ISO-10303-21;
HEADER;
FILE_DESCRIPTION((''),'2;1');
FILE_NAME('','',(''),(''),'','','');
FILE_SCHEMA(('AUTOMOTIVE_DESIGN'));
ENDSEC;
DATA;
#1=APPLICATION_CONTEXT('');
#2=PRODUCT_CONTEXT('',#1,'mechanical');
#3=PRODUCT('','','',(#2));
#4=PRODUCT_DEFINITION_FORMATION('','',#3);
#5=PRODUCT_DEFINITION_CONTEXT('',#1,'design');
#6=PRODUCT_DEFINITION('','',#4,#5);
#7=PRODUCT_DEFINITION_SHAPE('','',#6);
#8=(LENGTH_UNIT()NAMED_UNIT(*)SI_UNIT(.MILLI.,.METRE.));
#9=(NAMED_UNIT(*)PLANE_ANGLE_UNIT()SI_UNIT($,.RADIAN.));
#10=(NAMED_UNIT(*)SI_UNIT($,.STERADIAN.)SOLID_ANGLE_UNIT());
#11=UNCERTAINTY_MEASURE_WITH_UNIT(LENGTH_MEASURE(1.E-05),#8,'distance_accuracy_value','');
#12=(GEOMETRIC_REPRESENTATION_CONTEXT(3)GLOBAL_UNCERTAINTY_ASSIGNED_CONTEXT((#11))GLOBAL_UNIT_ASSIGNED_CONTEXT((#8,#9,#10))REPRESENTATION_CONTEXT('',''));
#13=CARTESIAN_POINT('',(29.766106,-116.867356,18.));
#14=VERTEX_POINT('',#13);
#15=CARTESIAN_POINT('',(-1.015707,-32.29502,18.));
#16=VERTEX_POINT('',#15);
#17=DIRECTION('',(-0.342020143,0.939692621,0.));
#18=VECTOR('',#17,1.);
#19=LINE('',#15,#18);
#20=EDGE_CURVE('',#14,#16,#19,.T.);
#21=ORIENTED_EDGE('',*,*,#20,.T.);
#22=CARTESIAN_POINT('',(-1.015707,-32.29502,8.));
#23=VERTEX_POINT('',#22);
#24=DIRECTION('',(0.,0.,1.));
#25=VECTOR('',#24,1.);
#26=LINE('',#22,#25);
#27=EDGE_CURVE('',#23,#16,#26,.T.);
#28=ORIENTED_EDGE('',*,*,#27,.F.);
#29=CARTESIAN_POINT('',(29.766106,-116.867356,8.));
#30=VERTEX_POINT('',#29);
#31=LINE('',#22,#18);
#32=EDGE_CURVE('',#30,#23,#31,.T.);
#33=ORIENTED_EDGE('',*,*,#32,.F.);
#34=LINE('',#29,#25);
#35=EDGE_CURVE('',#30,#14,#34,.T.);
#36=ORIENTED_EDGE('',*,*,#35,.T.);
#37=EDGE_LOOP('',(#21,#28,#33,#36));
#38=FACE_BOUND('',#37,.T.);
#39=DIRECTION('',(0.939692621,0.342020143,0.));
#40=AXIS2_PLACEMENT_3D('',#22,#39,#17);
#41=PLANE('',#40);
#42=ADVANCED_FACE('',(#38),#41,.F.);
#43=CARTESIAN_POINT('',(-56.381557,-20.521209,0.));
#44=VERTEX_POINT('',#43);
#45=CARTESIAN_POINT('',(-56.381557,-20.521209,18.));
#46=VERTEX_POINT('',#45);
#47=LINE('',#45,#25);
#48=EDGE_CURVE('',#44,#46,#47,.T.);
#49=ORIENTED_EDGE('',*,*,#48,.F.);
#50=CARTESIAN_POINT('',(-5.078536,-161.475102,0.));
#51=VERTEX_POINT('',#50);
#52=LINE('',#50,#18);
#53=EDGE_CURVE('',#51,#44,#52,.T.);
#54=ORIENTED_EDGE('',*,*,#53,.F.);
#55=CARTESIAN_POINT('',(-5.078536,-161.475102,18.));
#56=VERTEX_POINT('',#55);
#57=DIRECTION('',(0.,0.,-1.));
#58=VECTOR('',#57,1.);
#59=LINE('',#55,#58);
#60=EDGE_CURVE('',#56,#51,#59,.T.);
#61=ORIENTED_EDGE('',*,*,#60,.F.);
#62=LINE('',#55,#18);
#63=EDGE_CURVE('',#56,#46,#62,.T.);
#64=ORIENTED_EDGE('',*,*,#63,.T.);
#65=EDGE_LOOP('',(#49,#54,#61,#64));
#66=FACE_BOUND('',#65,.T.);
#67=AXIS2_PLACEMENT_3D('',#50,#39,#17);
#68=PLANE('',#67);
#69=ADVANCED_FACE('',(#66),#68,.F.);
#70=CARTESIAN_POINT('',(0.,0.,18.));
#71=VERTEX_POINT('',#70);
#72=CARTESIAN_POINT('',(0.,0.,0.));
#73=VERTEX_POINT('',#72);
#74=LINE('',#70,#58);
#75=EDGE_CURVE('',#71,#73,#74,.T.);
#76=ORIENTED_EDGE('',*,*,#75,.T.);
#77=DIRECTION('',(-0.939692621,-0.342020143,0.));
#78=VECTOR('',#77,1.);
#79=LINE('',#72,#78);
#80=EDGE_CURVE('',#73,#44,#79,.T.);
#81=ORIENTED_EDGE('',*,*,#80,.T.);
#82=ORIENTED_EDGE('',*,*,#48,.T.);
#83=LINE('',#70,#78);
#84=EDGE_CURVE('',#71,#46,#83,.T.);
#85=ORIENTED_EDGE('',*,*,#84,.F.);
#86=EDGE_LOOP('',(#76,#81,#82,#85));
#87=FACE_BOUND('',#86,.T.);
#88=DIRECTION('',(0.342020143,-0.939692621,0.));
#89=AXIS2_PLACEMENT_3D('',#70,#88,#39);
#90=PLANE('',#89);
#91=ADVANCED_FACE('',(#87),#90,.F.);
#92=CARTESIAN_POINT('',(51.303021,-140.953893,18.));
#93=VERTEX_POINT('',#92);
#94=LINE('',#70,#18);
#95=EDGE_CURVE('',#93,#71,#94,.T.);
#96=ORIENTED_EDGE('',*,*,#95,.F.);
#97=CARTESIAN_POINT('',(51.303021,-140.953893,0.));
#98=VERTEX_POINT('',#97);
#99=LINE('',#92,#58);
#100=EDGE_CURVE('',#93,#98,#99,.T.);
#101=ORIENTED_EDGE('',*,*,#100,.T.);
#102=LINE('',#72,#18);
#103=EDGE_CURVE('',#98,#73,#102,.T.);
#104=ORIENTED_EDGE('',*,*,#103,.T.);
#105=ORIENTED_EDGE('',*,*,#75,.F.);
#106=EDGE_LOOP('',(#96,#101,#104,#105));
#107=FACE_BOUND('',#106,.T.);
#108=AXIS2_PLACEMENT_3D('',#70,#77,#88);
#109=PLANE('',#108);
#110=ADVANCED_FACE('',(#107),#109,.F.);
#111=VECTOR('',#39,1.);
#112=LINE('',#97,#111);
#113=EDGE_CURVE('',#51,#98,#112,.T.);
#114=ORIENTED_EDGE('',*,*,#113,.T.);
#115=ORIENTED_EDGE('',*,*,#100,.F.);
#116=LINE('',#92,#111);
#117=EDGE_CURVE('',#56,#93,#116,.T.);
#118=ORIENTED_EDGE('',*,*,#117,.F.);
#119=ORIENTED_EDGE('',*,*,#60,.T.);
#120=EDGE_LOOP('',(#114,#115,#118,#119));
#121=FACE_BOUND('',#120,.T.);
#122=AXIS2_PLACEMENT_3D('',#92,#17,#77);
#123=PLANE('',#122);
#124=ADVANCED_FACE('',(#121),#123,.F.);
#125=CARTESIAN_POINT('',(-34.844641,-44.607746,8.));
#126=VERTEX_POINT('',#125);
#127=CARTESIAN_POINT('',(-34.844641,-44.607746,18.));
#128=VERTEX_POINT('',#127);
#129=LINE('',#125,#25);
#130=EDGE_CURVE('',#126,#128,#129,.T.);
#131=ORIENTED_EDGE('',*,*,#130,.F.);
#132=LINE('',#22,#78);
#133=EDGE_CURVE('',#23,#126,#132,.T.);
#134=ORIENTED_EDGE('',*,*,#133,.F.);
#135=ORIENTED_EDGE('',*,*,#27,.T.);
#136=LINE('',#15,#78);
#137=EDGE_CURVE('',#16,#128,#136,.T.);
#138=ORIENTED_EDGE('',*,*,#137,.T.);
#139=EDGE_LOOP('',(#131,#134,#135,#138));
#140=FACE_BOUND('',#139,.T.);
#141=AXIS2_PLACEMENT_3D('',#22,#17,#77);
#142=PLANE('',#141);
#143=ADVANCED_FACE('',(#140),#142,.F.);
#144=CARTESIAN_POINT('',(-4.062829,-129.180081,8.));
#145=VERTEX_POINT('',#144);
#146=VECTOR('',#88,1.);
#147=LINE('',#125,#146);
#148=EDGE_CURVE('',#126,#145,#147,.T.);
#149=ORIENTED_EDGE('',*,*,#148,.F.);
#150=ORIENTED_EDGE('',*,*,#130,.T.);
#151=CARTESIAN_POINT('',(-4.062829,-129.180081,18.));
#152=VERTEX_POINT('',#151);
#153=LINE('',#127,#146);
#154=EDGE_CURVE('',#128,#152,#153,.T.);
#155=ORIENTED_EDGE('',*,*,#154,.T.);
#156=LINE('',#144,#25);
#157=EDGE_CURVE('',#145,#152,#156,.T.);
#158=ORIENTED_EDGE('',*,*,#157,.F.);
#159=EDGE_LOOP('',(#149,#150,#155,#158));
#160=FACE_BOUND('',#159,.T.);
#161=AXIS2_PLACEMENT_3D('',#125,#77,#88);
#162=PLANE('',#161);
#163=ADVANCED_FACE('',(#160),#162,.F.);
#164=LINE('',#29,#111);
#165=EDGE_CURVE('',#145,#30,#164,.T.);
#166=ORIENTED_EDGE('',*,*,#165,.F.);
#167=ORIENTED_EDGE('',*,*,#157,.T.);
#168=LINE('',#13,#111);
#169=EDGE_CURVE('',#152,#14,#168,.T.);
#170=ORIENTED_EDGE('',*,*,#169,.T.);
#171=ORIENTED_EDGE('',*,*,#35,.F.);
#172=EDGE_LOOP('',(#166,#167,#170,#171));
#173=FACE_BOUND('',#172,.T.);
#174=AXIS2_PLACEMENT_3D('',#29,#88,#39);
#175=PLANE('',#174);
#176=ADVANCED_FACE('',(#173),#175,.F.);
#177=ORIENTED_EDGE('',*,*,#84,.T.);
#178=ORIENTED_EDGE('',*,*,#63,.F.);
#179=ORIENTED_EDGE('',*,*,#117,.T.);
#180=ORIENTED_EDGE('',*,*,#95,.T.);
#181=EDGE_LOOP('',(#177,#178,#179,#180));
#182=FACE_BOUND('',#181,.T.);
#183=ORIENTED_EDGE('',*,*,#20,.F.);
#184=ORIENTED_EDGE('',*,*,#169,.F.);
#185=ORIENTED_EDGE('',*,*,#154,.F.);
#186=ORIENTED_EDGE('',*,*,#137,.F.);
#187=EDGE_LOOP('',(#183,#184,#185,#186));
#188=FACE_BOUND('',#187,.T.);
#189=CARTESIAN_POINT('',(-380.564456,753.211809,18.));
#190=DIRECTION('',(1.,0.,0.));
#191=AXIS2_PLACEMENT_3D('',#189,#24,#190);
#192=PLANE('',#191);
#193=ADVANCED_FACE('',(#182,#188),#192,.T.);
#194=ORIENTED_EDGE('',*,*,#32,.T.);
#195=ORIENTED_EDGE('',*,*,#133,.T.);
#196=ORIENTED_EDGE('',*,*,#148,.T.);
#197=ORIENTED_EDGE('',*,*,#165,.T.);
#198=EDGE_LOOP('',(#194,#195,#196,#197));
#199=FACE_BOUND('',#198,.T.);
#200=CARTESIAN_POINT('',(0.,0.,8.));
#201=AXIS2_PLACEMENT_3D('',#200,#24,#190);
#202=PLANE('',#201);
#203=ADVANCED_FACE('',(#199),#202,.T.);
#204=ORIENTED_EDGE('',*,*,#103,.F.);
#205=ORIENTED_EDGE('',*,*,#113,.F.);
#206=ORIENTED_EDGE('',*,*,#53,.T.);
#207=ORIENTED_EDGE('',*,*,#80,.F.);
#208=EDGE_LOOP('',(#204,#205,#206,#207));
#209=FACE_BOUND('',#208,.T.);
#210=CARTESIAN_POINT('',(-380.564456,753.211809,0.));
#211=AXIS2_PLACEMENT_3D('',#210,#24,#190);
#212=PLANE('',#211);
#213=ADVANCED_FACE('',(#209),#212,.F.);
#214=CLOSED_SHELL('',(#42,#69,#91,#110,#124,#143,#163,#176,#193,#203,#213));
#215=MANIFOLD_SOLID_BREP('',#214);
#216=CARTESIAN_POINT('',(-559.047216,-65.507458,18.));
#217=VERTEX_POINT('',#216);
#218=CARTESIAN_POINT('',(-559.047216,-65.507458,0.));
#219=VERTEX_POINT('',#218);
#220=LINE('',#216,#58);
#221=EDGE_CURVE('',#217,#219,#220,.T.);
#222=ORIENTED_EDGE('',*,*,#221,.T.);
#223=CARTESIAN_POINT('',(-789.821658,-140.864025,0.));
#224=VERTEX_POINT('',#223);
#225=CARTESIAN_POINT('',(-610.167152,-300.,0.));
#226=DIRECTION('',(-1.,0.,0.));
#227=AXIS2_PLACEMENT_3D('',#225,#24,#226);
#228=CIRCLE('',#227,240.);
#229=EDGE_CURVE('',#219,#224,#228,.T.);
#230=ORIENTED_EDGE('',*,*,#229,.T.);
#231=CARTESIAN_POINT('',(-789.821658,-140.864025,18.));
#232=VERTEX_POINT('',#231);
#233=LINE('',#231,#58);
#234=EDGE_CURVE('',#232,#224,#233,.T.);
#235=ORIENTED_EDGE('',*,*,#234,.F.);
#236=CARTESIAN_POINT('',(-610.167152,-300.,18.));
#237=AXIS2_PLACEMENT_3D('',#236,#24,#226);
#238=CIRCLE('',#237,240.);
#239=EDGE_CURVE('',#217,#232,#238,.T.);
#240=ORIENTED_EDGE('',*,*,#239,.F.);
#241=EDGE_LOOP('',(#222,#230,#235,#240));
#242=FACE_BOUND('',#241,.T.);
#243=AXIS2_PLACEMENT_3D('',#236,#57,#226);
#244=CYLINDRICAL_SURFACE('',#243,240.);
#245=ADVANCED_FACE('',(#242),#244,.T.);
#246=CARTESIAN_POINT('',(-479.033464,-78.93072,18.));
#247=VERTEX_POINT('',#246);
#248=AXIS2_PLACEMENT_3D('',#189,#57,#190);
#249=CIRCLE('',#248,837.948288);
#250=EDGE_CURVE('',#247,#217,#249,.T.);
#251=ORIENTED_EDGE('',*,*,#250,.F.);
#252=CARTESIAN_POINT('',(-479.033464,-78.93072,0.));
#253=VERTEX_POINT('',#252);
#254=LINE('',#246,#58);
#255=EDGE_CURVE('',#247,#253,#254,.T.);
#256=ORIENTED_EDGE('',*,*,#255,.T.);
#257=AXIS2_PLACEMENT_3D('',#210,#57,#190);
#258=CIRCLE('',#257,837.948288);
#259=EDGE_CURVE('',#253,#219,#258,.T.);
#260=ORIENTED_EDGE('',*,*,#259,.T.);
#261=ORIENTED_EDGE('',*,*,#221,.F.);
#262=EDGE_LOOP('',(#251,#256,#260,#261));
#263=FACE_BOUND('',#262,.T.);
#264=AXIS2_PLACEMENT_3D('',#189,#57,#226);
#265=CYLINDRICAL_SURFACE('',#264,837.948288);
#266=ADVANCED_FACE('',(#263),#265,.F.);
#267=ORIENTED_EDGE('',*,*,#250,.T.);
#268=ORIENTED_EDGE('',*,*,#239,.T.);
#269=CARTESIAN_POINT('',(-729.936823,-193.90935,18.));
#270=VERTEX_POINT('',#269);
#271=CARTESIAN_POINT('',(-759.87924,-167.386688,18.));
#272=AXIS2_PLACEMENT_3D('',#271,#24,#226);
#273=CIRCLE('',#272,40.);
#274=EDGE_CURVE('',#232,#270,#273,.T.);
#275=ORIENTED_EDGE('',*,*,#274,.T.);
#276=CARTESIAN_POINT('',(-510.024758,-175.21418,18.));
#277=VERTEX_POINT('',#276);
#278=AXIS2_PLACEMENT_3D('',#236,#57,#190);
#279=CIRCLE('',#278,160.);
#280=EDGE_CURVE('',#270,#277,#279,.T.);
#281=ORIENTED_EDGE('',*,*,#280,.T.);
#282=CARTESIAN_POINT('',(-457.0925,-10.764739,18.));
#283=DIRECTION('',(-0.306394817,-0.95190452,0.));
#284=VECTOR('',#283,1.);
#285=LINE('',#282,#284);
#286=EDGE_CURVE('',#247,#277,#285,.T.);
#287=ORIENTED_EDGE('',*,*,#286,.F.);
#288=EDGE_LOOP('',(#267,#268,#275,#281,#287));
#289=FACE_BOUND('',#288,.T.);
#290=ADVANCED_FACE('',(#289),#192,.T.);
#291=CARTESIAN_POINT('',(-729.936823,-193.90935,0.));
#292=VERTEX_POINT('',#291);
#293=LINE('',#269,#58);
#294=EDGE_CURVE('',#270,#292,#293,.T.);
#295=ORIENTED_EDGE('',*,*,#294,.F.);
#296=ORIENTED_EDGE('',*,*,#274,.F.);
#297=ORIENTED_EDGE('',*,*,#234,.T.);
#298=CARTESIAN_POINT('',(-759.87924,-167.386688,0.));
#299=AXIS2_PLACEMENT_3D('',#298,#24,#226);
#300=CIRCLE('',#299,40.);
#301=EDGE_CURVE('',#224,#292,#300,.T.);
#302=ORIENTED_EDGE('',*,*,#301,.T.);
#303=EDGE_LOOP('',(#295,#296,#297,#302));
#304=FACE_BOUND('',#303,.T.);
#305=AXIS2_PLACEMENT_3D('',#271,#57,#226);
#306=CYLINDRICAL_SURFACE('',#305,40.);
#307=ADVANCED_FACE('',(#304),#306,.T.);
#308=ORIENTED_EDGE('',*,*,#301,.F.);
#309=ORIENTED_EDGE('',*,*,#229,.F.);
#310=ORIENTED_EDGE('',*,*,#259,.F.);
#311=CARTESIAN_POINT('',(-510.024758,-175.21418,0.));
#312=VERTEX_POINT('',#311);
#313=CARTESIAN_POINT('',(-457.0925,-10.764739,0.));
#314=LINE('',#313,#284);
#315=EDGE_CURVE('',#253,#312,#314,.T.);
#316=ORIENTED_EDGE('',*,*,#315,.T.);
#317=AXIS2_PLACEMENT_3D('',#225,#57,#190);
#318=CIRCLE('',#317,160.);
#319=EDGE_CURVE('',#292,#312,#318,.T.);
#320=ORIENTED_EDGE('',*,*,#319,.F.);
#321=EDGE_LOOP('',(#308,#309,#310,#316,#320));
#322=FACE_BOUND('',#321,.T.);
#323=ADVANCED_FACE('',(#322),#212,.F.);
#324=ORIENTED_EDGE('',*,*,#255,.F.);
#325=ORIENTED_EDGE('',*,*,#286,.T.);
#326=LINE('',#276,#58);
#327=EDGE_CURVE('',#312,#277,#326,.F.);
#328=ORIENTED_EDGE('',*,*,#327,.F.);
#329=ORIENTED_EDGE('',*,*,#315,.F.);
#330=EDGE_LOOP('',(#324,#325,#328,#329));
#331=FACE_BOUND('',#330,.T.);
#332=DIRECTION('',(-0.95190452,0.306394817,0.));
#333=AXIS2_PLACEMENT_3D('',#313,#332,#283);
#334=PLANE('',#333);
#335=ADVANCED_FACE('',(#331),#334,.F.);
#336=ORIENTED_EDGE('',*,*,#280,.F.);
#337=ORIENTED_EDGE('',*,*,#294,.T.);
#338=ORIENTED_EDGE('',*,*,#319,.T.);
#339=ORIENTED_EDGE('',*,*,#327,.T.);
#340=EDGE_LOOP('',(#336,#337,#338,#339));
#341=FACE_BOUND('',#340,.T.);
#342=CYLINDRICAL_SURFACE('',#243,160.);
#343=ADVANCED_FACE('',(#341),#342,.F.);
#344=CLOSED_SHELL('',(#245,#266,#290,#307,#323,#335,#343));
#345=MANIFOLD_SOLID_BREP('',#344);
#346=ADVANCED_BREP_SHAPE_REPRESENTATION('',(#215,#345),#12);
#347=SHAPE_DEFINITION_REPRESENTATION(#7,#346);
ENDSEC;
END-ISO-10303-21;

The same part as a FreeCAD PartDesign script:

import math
import FreeCAD as App
import Part
import Sketcher
Q = App.Units.Quantity


def add_polygon(sketch, points):
    """Adds a closed chain of lines whose ends are joined by coincident constraints."""
    first, n = sketch.GeometryCount, len(points)
    for a, b in zip(points, points[1:] + points[:1]):
        sketch.addGeometry(Part.LineSegment(App.Vector(*a, 0), App.Vector(*b, 0)), False)
    for i in range(n):
        sketch.addConstraint(Sketcher.Constraint("Coincident", first + i, 2, first + (i + 1) % n, 1))

doc = App.newDocument("Part")
params = doc.addObject("Spreadsheet::Sheet", "Params")
for row, (alias, value) in enumerate([
    ("sketch1_radius", "240 mm"),
    ("sketch1_radius2", "40 mm"),
    ("sketch1_length", "150 mm"),
    ("sketch1_length2", "100 mm"),
    ("sketch1_length3", "60 mm"),
    ("pad1_length", "18 mm"),
    ("sketch2_radius", "55 mm"),
    ("sketch2_width", "200 mm"),
    ("sketch2_height", "97 mm"),
    ("sketch2_height2", "60 mm"),
    ("sketch4_length", "90 mm"),
    ("sketch4_length2", "36 mm"),
    ("pocket3_length", "10 mm"),
], start=1):
    params.set(f"A{row}", alias)
    params.set(f"B{row}", "=" + value)
    params.setAlias(f"B{row}", alias)

body = doc.addObject("PartDesign::Body", "Body")
body.AllowCompound = True

# Sketch on XY plane
sketch1 = body.newObject("Sketcher::SketchObject", "Sketch")
sketch1.AttachmentSupport = (doc.getObject("XY_Plane"), [""])
sketch1.MapMode = "FlatFace"
sketch1.addGeometry([
    Part.LineSegment(App.Vector(51.303021, -140.953893, 0), App.Vector(0, 0, 0)),  # 0
    Part.LineSegment(App.Vector(0, 0, 0), App.Vector(-93.969262, -34.202014, 0)),  # 1
    Part.ArcOfCircle(Part.Circle(App.Vector(-380.564456, 753.211809, 0), App.Vector(0, 0, 1), 837.948288), math.radians(-102.298202), math.radians(-70)),  # 2
    Part.ArcOfCircle(Part.Circle(App.Vector(-610.167152, -300, 0), App.Vector(0, 0, 1), 240), math.radians(77.701798), math.radians(138.465832)),  # 3
    Part.ArcOfCircle(Part.Circle(App.Vector(-759.87924, -167.386688, 0), App.Vector(0, 0, 1), 40), math.radians(138.465832), math.radians(318.465832)),  # 4
    Part.ArcOfCircle(Part.Circle(App.Vector(-610.167152, -300, 0), App.Vector(0, 0, 1), 160), math.radians(-18.209957), math.radians(138.465832)),  # 5
    Part.LineSegment(App.Vector(-458.18031, -350, 0), App.Vector(-59.866905, -350, 0)),  # 6
    Part.ArcOfCircle(Part.Circle(App.Vector(119.832848, -300, 0), App.Vector(0, 0, 1), 186.526141), math.radians(132.041775), math.radians(195.548795)),  # 7
    Part.LineSegment(App.Vector(-5.078536, -161.475102, 0), App.Vector(51.303021, -140.953893, 0)),  # 8
], False)
sketch1.addConstraint([
    Sketcher.Constraint("Coincident", 0, 2, 1, 1),
    Sketcher.Constraint("Tangent", 1, 2, 2, 2),
    Sketcher.Constraint("Tangent", 2, 1, 3, 1),
    Sketcher.Constraint("Tangent", 3, 2, 4, 1),
    Sketcher.Constraint("Tangent", 4, 2, 5, 2),
    Sketcher.Constraint("Coincident", 5, 1, 6, 1),
    Sketcher.Constraint("Coincident", 6, 2, 7, 2),
    Sketcher.Constraint("Coincident", 7, 1, 8, 1),
    Sketcher.Constraint("Coincident", 8, 2, 0, 1),
    Sketcher.Constraint("Horizontal", 6),
    Sketcher.Constraint("Coincident", 0, 2, -1, 1),
    Sketcher.Constraint("Coincident", 5, 3, 3, 3),
    Sketcher.Constraint("Perpendicular", 0, 1),
    Sketcher.Constraint("Parallel", 1, 8),
    Sketcher.Constraint("Horizontal", 5, 3, 7, 3),
    Sketcher.Constraint("Radius", 3, 240.0),
    Sketcher.Constraint("Radius", 4, 40.0),
    Sketcher.Constraint("Angle", 0, Q("110 deg")),
    Sketcher.Constraint("Distance", 0, 150.0),
    Sketcher.Constraint("Distance", 1, 100.0),
    Sketcher.Constraint("Distance", 8, 60.0),
    Sketcher.Constraint("DistanceY", 3, 3, -1, 1, 300.0),
    Sketcher.Constraint("DistanceY", 5, 1, -1, 1, 350.0),
    Sketcher.Constraint("DistanceX", 3, 3, 7, 3, 730.0),
    Sketcher.Constraint("Radius", 2, 837.948288),
    Sketcher.Constraint("DistanceX", 4, 3, -1, 1, 759.87924),
])
sketch1.setExpression("Constraints[15]", "Params.sketch1_radius")
sketch1.setExpression("Constraints[16]", "Params.sketch1_radius2")
sketch1.setExpression("Constraints[18]", "Params.sketch1_length")
sketch1.setExpression("Constraints[19]", "Params.sketch1_length2")
sketch1.setExpression("Constraints[20]", "Params.sketch1_length3")
pad1 = body.newObject("PartDesign::Pad", "Pad")
pad1.Profile = sketch1
pad1.setExpression("Length", "Params.pad1_length")

# Sketch on XY plane
sketch2 = body.newObject("Sketcher::SketchObject", "Sketch001")
sketch2.AttachmentSupport = (doc.getObject("XY_Plane"), [""])
sketch2.MapMode = "FlatFace"
sketch2.AttachmentOffset = App.Placement(App.Vector(0, 0, 18), App.Rotation())
add_polygon(sketch2, [(-287.508312, -218), (-287.508312, -315), (-87.508312, -315), (-87.508312, -218)])  # lines 0-3
sketch2.addGeometry(Part.LineSegment(App.Vector(-432.508312, -315, 0), App.Vector(-322.508312, -315, 0)), False)  # 4
sketch2.addGeometry(Part.LineSegment(App.Vector(-322.508312, -315, 0), App.Vector(-322.508312, -255, 0)), False)  # 5
sketch2.addGeometry(Part.ArcOfCircle(Part.Circle(App.Vector(-377.508312, -255, 0), App.Vector(0, 0, 1), 55), math.radians(0), math.radians(180)), False)  # 6
sketch2.addGeometry(Part.LineSegment(App.Vector(-432.508312, -255, 0), App.Vector(-432.508312, -315, 0)), False)  # 7
sketch2.addConstraint([
    Sketcher.Constraint("Coincident", 4, 2, 5, 1),
    Sketcher.Constraint("Tangent", 5, 2, 6, 1),
    Sketcher.Constraint("Tangent", 6, 2, 7, 1),
    Sketcher.Constraint("Coincident", 7, 2, 4, 1),
    Sketcher.Constraint("Vertical", 0),
    Sketcher.Constraint("Horizontal", 1),
    Sketcher.Constraint("Vertical", 2),
    Sketcher.Constraint("Horizontal", 3),
    Sketcher.Constraint("Horizontal", 4),
    Sketcher.Constraint("Vertical", 5),
    Sketcher.Constraint("Vertical", 7),
    Sketcher.Constraint("Horizontal", 1, 2, 4, 2),
    Sketcher.Constraint("Radius", 6, 55.0),
    Sketcher.Constraint("DistanceX", 1, 1, 1, 2, 200.0),
    Sketcher.Constraint("DistanceY", 0, 2, 0, 1, 97.0),
    Sketcher.Constraint("DistanceY", 5, 1, 5, 2, 60.0),
    Sketcher.Constraint("DistanceY", 6, 3, -1, 1, 255.0),
    Sketcher.Constraint("DistanceX", 6, 3, 0, 2, 90.0),
    Sketcher.Constraint("DistanceX", 6, 3, -1, 1, 377.508312),
])
sketch2.setExpression("Constraints[16]", "Params.sketch2_radius")
sketch2.setExpression("Constraints[17]", "Params.sketch2_width")
sketch2.setExpression("Constraints[18]", "Params.sketch2_height")
sketch2.setExpression("Constraints[19]", "Params.sketch2_height2")
pocket1 = body.newObject("PartDesign::Pocket", "Pocket")
pocket1.Profile = sketch2
pocket1.Type = "ThroughAll"

# Sketch on XY plane
sketch3 = body.newObject("Sketcher::SketchObject", "Sketch002")
sketch3.AttachmentSupport = (doc.getObject("XY_Plane"), [""])
sketch3.MapMode = "FlatFace"
sketch3.AttachmentOffset = App.Placement(App.Vector(0, 0, 18), App.Rotation())
add_polygon(sketch3, [(-5.078536, -161.475102), (-84.826671, 57.631099), (-457.0925, -10.764739), (-587.040553, -414.486124), (5.988619, -394.516025)])  # lines 0-4
sketch3.addConstraint([
    Sketcher.Constraint("Angle", 0, Q("110 deg")),
    Sketcher.Constraint("DistanceY", -1, 1, 0, 2, 57.631099),
    Sketcher.Constraint("DistanceX", 1, 2, -1, 1, 457.0925),
    Sketcher.Constraint("DistanceY", 4, 2, -1, 1, 161.475102),
    Sketcher.Constraint("DistanceY", 2, 2, 3, 2, 19.970099),
    Sketcher.Constraint("Distance", 2, 424.119622),
    Sketcher.Constraint("Distance", 3, 593.365321),
    Sketcher.Constraint("DistanceX", 0, 2, -1, 1, 84.826671),
    Sketcher.Constraint("DistanceY", 1, 2, -1, 1, 10.764739),
    Sketcher.Constraint("DistanceX", -1, 1, 3, 2, 5.988619),
])
pocket2 = body.newObject("PartDesign::Pocket", "Pocket001")
pocket2.Profile = sketch3
pocket2.Type = "ThroughAll"

# Sketch on XY plane
sketch4 = body.newObject("Sketcher::SketchObject", "Sketch003")
sketch4.AttachmentSupport = (doc.getObject("XY_Plane"), [""])
sketch4.MapMode = "FlatFace"
sketch4.AttachmentOffset = App.Placement(App.Vector(0, 0, 18), App.Rotation())
add_polygon(sketch4, [(29.766106, -116.867356), (-1.015707, -32.29502), (-34.844641, -44.607746), (-4.062829, -129.180081)])  # lines 0-3
sketch4.addConstraint([
    Sketcher.Constraint("Perpendicular", 0, 1),
    Sketcher.Constraint("Perpendicular", 1, 2),
    Sketcher.Constraint("Perpendicular", 2, 3),
    Sketcher.Constraint("Angle", 0, Q("110 deg")),
    Sketcher.Constraint("Distance", 0, 90.0),
    Sketcher.Constraint("Distance", 1, 36.0),
    Sketcher.Constraint("DistanceY", 0, 2, -1, 1, 32.29502),
    Sketcher.Constraint("DistanceX", 1, 2, -1, 1, 34.844641),
])
sketch4.setExpression("Constraints[8]", "Params.sketch4_length")
sketch4.setExpression("Constraints[9]", "Params.sketch4_length2")
pocket3 = body.newObject("PartDesign::Pocket", "Pocket002")
pocket3.Profile = sketch4
pocket3.setExpression("Length", "Params.pocket3_length")

doc.recompute()
